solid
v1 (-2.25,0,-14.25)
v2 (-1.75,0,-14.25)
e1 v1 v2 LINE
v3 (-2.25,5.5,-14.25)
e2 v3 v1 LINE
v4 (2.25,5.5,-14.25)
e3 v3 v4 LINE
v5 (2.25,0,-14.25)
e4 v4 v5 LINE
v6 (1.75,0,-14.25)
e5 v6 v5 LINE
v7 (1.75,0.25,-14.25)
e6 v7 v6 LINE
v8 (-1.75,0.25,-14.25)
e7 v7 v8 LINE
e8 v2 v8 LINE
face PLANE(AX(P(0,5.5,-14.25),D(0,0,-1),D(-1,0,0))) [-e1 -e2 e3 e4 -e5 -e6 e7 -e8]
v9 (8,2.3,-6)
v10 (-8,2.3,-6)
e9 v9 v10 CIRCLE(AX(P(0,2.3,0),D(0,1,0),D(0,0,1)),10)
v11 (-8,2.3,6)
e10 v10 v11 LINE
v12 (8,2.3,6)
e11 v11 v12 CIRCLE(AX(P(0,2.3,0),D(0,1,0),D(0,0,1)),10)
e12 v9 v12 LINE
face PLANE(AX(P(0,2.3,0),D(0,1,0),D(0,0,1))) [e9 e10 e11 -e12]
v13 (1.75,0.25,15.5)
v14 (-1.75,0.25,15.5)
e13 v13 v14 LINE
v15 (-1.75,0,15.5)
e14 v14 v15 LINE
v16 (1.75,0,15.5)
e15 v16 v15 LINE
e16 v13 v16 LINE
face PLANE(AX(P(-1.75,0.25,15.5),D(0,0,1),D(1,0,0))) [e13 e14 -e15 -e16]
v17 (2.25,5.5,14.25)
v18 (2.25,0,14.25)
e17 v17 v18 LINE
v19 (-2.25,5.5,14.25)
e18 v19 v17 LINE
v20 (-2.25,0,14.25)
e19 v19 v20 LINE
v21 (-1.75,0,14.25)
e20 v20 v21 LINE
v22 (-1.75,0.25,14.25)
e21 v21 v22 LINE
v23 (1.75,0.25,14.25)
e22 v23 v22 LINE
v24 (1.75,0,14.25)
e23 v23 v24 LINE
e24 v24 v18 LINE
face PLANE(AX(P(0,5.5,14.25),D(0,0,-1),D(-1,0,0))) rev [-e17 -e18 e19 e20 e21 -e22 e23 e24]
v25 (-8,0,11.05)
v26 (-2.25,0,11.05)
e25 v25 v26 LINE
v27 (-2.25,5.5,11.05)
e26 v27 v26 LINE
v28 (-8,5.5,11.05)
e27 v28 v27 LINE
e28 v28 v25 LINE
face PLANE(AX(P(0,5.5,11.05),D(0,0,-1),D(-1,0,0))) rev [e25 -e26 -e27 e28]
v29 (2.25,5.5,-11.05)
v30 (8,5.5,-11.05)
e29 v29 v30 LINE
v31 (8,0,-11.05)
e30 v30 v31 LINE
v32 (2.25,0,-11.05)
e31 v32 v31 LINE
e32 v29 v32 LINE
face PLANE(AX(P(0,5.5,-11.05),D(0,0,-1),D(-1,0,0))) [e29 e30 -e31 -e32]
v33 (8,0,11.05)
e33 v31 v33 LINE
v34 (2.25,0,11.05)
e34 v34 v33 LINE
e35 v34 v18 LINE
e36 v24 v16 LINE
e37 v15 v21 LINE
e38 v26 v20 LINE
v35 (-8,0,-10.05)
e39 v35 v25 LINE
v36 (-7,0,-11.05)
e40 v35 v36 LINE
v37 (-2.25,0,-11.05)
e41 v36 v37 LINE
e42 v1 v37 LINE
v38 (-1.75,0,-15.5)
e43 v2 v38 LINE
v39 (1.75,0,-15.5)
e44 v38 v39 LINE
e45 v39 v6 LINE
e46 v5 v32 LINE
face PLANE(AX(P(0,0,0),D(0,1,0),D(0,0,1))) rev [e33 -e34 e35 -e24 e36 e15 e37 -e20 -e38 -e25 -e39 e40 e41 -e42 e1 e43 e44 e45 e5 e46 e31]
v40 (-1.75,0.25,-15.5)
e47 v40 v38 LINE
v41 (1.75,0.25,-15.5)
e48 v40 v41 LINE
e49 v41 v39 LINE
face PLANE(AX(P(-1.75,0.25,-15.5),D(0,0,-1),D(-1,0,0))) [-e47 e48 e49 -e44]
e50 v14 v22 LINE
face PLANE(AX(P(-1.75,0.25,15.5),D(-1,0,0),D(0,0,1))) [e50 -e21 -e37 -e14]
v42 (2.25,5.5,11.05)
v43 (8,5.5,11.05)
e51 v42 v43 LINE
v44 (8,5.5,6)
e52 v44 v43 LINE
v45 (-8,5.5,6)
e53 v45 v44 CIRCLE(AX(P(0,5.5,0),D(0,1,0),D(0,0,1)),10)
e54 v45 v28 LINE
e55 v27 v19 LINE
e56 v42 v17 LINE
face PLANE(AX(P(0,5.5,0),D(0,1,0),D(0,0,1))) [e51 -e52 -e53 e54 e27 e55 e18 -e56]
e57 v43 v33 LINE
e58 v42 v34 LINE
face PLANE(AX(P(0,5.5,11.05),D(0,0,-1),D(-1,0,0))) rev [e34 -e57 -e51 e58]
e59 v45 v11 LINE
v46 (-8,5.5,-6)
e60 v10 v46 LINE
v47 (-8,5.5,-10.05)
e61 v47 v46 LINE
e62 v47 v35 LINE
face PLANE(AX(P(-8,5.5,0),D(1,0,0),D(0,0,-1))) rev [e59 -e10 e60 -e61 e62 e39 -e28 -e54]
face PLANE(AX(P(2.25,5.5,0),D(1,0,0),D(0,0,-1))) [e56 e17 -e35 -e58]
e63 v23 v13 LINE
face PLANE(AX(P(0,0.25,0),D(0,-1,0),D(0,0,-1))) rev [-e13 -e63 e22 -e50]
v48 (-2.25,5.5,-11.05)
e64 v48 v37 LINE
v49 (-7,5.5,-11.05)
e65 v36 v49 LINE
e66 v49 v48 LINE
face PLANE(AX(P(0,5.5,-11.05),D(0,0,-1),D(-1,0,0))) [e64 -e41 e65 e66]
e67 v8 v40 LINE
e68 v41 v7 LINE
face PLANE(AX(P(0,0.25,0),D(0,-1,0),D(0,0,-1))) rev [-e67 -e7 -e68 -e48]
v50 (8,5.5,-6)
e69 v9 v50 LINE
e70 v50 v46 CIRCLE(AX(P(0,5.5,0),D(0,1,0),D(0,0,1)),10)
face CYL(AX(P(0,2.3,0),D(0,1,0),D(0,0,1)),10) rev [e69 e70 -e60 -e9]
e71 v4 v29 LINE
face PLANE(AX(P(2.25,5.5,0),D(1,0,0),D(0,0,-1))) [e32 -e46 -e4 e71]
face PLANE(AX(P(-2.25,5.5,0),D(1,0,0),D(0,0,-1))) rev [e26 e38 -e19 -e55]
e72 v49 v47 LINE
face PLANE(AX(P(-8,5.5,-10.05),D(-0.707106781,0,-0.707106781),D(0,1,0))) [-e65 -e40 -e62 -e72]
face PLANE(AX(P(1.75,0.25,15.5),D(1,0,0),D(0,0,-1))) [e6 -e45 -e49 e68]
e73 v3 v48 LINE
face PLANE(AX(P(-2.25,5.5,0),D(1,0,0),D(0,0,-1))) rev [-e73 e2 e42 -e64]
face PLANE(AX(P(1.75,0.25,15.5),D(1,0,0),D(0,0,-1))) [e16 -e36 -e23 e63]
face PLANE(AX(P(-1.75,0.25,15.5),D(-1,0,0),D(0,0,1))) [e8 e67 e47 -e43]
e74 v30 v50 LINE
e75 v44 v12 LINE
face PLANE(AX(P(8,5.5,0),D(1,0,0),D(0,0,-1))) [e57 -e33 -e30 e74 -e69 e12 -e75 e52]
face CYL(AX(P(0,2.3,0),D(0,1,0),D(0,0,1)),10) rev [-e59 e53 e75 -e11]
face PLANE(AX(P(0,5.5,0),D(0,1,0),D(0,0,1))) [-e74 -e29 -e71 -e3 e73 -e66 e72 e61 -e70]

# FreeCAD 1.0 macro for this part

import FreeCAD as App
import Part
import Sketcher


def edges_at(feature, points):
    """Names of the edges that pass closest to the given points."""
    edges = feature.Shape.Edges
    near = lambda p: min(range(len(edges)), key=lambda i: edges[i].distToShape(Part.Vertex(*p))[0])
    return sorted({f"Edge{near(p) + 1}" for p in points})

doc = App.newDocument("Part")
body = doc.addObject("PartDesign::Body", "Body")

# Sketch on XZ plane
sketch1 = body.newObject("Sketcher::SketchObject", "Sketch")
sketch1.AttachmentSupport = (doc.getObject("XZ_Plane"), [""])
sketch1.MapMode = "FlatFace"
sketch1.addGeometry([
    Part.LineSegment(App.Vector(-8, -11.1, 0), App.Vector(-8, 11.1, 0)),  # 0
    Part.LineSegment(App.Vector(-8, 11.1, 0), App.Vector(-2.2, 11.1, 0)),  # 1
    Part.LineSegment(App.Vector(-2.2, 11.1, 0), App.Vector(-2.2, 14.2, 0)),  # 2
    Part.LineSegment(App.Vector(-2.2, 14.2, 0), App.Vector(2.2, 14.2, 0)),  # 3
    Part.LineSegment(App.Vector(2.2, 14.2, 0), App.Vector(2.2, 11.1, 0)),  # 4
    Part.LineSegment(App.Vector(2.2, 11.1, 0), App.Vector(8, 11.1, 0)),  # 5
    Part.LineSegment(App.Vector(8, 11.1, 0), App.Vector(8, -11.1, 0)),  # 6
    Part.LineSegment(App.Vector(8, -11.1, 0), App.Vector(2.2, -11.1, 0)),  # 7
    Part.LineSegment(App.Vector(2.2, -11.1, 0), App.Vector(2.2, -14.2, 0)),  # 8
    Part.LineSegment(App.Vector(2.2, -14.2, 0), App.Vector(-2.2, -14.2, 0)),  # 9
    Part.LineSegment(App.Vector(-2.2, -14.2, 0), App.Vector(-2.2, -11.1, 0)),  # 10
    Part.LineSegment(App.Vector(-2.2, -11.1, 0), App.Vector(-8, -11.1, 0)),  # 11
], False)
sketch1.addConstraint([
    Sketcher.Constraint("Coincident", 0, 2, 1, 1),
    Sketcher.Constraint("Coincident", 1, 2, 2, 1),
    Sketcher.Constraint("Coincident", 2, 2, 3, 1),
    Sketcher.Constraint("Coincident", 3, 2, 4, 1),
    Sketcher.Constraint("Coincident", 4, 2, 5, 1),
    Sketcher.Constraint("Coincident", 5, 2, 6, 1),
    Sketcher.Constraint("Coincident", 6, 2, 7, 1),
    Sketcher.Constraint("Coincident", 7, 2, 8, 1),
    Sketcher.Constraint("Coincident", 8, 2, 9, 1),
    Sketcher.Constraint("Coincident", 9, 2, 10, 1),
    Sketcher.Constraint("Coincident", 10, 2, 11, 1),
    Sketcher.Constraint("Coincident", 11, 2, 0, 1),
    Sketcher.Constraint("Vertical", 0),
    Sketcher.Constraint("Horizontal", 1),
    Sketcher.Constraint("Vertical", 2),
    Sketcher.Constraint("Horizontal", 3),
    Sketcher.Constraint("Vertical", 4),
    Sketcher.Constraint("Horizontal", 5),
    Sketcher.Constraint("Vertical", 6),
    Sketcher.Constraint("Horizontal", 7),
    Sketcher.Constraint("Vertical", 8),
    Sketcher.Constraint("Horizontal", 9),
    Sketcher.Constraint("Vertical", 10),
    Sketcher.Constraint("Horizontal", 11),
    Sketcher.Constraint("Symmetric", 0, 2, 6, 2, -1, 1),
    Sketcher.Constraint("Symmetric", 2, 2, 8, 2, -1, 1),
    Sketcher.Constraint("Symmetric", 4, 2, 10, 2, -1, 1),
    Sketcher.Constraint("Symmetric", 1, 2, 4, 2, -2),
    Sketcher.Constraint("DistanceX", 3, 1, 3, 2, 4.5),
    Sketcher.Constraint("DistanceY", 0, 1, 0, 2, 22.1),
    Sketcher.Constraint("DistanceY", 2, 1, 2, 2, 3.2),
    Sketcher.Constraint("DistanceX", 0, 2, -1, 1, 8.0),
])
pad1 = body.newObject("PartDesign::Pad", "Pad")
pad1.Profile = sketch1
pad1.Length = 5.5
pad1.Reversed = True

# Sketch on XZ plane
sketch2 = body.newObject("Sketcher::SketchObject", "Sketch001")
sketch2.AttachmentSupport = (doc.getObject("XZ_Plane"), [""])
sketch2.MapMode = "FlatFace"
sketch2.AttachmentOffset = App.Placement(App.Vector(0, 0, -5.5), App.Rotation())
sketch2.addGeometry(Part.Circle(App.Vector(0, 0, 0), App.Vector(0, 0, 1), 10), False)
sketch2.addConstraint([
    Sketcher.Constraint("Coincident", 0, 3, -1, 1),
    Sketcher.Constraint("Diameter", 0, 20.0),
])
pocket1 = body.newObject("PartDesign::Pocket", "Pocket")
pocket1.Profile = sketch2
pocket1.Length = 3.2
pocket1.Reversed = True
doc.recompute()

chamfer = body.newObject("PartDesign::Chamfer", "Chamfer")
chamfer.Base = (pocket1, edges_at(pocket1, [(-8, 2.75, -11.05)]))
chamfer.Size = 1

# Sketch on XZ plane
sketch3 = body.newObject("Sketcher::SketchObject", "Sketch002")
sketch3.AttachmentSupport = (doc.getObject("XZ_Plane"), [""])
sketch3.MapMode = "FlatFace"
sketch3.addGeometry([
    Part.LineSegment(App.Vector(-1.8, 15.5, 0), App.Vector(-1.8, -15.5, 0)),
    Part.LineSegment(App.Vector(-1.8, -15.5, 0), App.Vector(1.8, -15.5, 0)),
    Part.LineSegment(App.Vector(1.8, -15.5, 0), App.Vector(1.8, 15.5, 0)),
    Part.LineSegment(App.Vector(1.8, 15.5, 0), App.Vector(-1.8, 15.5, 0)),
], False)
sketch3.addConstraint([
    Sketcher.Constraint("Coincident", 0, 2, 1, 1),
    Sketcher.Constraint("Coincident", 1, 2, 2, 1),
    Sketcher.Constraint("Coincident", 2, 2, 3, 1),
    Sketcher.Constraint("Coincident", 3, 2, 0, 1),
    Sketcher.Constraint("Vertical", 0),
    Sketcher.Constraint("Horizontal", 1),
    Sketcher.Constraint("Vertical", 2),
    Sketcher.Constraint("Horizontal", 3),
    Sketcher.Constraint("Symmetric", 0, 2, 2, 2, -1, 1),
    Sketcher.Constraint("DistanceY", 0, 2, 0, 1, 31.0),
    Sketcher.Constraint("DistanceX", 1, 1, 1, 2, 3.5),
])
pad2 = body.newObject("PartDesign::Pad", "Pad001")
pad2.Profile = sketch3
pad2.Length = 0.25
pad2.Reversed = True

doc.recompute()
